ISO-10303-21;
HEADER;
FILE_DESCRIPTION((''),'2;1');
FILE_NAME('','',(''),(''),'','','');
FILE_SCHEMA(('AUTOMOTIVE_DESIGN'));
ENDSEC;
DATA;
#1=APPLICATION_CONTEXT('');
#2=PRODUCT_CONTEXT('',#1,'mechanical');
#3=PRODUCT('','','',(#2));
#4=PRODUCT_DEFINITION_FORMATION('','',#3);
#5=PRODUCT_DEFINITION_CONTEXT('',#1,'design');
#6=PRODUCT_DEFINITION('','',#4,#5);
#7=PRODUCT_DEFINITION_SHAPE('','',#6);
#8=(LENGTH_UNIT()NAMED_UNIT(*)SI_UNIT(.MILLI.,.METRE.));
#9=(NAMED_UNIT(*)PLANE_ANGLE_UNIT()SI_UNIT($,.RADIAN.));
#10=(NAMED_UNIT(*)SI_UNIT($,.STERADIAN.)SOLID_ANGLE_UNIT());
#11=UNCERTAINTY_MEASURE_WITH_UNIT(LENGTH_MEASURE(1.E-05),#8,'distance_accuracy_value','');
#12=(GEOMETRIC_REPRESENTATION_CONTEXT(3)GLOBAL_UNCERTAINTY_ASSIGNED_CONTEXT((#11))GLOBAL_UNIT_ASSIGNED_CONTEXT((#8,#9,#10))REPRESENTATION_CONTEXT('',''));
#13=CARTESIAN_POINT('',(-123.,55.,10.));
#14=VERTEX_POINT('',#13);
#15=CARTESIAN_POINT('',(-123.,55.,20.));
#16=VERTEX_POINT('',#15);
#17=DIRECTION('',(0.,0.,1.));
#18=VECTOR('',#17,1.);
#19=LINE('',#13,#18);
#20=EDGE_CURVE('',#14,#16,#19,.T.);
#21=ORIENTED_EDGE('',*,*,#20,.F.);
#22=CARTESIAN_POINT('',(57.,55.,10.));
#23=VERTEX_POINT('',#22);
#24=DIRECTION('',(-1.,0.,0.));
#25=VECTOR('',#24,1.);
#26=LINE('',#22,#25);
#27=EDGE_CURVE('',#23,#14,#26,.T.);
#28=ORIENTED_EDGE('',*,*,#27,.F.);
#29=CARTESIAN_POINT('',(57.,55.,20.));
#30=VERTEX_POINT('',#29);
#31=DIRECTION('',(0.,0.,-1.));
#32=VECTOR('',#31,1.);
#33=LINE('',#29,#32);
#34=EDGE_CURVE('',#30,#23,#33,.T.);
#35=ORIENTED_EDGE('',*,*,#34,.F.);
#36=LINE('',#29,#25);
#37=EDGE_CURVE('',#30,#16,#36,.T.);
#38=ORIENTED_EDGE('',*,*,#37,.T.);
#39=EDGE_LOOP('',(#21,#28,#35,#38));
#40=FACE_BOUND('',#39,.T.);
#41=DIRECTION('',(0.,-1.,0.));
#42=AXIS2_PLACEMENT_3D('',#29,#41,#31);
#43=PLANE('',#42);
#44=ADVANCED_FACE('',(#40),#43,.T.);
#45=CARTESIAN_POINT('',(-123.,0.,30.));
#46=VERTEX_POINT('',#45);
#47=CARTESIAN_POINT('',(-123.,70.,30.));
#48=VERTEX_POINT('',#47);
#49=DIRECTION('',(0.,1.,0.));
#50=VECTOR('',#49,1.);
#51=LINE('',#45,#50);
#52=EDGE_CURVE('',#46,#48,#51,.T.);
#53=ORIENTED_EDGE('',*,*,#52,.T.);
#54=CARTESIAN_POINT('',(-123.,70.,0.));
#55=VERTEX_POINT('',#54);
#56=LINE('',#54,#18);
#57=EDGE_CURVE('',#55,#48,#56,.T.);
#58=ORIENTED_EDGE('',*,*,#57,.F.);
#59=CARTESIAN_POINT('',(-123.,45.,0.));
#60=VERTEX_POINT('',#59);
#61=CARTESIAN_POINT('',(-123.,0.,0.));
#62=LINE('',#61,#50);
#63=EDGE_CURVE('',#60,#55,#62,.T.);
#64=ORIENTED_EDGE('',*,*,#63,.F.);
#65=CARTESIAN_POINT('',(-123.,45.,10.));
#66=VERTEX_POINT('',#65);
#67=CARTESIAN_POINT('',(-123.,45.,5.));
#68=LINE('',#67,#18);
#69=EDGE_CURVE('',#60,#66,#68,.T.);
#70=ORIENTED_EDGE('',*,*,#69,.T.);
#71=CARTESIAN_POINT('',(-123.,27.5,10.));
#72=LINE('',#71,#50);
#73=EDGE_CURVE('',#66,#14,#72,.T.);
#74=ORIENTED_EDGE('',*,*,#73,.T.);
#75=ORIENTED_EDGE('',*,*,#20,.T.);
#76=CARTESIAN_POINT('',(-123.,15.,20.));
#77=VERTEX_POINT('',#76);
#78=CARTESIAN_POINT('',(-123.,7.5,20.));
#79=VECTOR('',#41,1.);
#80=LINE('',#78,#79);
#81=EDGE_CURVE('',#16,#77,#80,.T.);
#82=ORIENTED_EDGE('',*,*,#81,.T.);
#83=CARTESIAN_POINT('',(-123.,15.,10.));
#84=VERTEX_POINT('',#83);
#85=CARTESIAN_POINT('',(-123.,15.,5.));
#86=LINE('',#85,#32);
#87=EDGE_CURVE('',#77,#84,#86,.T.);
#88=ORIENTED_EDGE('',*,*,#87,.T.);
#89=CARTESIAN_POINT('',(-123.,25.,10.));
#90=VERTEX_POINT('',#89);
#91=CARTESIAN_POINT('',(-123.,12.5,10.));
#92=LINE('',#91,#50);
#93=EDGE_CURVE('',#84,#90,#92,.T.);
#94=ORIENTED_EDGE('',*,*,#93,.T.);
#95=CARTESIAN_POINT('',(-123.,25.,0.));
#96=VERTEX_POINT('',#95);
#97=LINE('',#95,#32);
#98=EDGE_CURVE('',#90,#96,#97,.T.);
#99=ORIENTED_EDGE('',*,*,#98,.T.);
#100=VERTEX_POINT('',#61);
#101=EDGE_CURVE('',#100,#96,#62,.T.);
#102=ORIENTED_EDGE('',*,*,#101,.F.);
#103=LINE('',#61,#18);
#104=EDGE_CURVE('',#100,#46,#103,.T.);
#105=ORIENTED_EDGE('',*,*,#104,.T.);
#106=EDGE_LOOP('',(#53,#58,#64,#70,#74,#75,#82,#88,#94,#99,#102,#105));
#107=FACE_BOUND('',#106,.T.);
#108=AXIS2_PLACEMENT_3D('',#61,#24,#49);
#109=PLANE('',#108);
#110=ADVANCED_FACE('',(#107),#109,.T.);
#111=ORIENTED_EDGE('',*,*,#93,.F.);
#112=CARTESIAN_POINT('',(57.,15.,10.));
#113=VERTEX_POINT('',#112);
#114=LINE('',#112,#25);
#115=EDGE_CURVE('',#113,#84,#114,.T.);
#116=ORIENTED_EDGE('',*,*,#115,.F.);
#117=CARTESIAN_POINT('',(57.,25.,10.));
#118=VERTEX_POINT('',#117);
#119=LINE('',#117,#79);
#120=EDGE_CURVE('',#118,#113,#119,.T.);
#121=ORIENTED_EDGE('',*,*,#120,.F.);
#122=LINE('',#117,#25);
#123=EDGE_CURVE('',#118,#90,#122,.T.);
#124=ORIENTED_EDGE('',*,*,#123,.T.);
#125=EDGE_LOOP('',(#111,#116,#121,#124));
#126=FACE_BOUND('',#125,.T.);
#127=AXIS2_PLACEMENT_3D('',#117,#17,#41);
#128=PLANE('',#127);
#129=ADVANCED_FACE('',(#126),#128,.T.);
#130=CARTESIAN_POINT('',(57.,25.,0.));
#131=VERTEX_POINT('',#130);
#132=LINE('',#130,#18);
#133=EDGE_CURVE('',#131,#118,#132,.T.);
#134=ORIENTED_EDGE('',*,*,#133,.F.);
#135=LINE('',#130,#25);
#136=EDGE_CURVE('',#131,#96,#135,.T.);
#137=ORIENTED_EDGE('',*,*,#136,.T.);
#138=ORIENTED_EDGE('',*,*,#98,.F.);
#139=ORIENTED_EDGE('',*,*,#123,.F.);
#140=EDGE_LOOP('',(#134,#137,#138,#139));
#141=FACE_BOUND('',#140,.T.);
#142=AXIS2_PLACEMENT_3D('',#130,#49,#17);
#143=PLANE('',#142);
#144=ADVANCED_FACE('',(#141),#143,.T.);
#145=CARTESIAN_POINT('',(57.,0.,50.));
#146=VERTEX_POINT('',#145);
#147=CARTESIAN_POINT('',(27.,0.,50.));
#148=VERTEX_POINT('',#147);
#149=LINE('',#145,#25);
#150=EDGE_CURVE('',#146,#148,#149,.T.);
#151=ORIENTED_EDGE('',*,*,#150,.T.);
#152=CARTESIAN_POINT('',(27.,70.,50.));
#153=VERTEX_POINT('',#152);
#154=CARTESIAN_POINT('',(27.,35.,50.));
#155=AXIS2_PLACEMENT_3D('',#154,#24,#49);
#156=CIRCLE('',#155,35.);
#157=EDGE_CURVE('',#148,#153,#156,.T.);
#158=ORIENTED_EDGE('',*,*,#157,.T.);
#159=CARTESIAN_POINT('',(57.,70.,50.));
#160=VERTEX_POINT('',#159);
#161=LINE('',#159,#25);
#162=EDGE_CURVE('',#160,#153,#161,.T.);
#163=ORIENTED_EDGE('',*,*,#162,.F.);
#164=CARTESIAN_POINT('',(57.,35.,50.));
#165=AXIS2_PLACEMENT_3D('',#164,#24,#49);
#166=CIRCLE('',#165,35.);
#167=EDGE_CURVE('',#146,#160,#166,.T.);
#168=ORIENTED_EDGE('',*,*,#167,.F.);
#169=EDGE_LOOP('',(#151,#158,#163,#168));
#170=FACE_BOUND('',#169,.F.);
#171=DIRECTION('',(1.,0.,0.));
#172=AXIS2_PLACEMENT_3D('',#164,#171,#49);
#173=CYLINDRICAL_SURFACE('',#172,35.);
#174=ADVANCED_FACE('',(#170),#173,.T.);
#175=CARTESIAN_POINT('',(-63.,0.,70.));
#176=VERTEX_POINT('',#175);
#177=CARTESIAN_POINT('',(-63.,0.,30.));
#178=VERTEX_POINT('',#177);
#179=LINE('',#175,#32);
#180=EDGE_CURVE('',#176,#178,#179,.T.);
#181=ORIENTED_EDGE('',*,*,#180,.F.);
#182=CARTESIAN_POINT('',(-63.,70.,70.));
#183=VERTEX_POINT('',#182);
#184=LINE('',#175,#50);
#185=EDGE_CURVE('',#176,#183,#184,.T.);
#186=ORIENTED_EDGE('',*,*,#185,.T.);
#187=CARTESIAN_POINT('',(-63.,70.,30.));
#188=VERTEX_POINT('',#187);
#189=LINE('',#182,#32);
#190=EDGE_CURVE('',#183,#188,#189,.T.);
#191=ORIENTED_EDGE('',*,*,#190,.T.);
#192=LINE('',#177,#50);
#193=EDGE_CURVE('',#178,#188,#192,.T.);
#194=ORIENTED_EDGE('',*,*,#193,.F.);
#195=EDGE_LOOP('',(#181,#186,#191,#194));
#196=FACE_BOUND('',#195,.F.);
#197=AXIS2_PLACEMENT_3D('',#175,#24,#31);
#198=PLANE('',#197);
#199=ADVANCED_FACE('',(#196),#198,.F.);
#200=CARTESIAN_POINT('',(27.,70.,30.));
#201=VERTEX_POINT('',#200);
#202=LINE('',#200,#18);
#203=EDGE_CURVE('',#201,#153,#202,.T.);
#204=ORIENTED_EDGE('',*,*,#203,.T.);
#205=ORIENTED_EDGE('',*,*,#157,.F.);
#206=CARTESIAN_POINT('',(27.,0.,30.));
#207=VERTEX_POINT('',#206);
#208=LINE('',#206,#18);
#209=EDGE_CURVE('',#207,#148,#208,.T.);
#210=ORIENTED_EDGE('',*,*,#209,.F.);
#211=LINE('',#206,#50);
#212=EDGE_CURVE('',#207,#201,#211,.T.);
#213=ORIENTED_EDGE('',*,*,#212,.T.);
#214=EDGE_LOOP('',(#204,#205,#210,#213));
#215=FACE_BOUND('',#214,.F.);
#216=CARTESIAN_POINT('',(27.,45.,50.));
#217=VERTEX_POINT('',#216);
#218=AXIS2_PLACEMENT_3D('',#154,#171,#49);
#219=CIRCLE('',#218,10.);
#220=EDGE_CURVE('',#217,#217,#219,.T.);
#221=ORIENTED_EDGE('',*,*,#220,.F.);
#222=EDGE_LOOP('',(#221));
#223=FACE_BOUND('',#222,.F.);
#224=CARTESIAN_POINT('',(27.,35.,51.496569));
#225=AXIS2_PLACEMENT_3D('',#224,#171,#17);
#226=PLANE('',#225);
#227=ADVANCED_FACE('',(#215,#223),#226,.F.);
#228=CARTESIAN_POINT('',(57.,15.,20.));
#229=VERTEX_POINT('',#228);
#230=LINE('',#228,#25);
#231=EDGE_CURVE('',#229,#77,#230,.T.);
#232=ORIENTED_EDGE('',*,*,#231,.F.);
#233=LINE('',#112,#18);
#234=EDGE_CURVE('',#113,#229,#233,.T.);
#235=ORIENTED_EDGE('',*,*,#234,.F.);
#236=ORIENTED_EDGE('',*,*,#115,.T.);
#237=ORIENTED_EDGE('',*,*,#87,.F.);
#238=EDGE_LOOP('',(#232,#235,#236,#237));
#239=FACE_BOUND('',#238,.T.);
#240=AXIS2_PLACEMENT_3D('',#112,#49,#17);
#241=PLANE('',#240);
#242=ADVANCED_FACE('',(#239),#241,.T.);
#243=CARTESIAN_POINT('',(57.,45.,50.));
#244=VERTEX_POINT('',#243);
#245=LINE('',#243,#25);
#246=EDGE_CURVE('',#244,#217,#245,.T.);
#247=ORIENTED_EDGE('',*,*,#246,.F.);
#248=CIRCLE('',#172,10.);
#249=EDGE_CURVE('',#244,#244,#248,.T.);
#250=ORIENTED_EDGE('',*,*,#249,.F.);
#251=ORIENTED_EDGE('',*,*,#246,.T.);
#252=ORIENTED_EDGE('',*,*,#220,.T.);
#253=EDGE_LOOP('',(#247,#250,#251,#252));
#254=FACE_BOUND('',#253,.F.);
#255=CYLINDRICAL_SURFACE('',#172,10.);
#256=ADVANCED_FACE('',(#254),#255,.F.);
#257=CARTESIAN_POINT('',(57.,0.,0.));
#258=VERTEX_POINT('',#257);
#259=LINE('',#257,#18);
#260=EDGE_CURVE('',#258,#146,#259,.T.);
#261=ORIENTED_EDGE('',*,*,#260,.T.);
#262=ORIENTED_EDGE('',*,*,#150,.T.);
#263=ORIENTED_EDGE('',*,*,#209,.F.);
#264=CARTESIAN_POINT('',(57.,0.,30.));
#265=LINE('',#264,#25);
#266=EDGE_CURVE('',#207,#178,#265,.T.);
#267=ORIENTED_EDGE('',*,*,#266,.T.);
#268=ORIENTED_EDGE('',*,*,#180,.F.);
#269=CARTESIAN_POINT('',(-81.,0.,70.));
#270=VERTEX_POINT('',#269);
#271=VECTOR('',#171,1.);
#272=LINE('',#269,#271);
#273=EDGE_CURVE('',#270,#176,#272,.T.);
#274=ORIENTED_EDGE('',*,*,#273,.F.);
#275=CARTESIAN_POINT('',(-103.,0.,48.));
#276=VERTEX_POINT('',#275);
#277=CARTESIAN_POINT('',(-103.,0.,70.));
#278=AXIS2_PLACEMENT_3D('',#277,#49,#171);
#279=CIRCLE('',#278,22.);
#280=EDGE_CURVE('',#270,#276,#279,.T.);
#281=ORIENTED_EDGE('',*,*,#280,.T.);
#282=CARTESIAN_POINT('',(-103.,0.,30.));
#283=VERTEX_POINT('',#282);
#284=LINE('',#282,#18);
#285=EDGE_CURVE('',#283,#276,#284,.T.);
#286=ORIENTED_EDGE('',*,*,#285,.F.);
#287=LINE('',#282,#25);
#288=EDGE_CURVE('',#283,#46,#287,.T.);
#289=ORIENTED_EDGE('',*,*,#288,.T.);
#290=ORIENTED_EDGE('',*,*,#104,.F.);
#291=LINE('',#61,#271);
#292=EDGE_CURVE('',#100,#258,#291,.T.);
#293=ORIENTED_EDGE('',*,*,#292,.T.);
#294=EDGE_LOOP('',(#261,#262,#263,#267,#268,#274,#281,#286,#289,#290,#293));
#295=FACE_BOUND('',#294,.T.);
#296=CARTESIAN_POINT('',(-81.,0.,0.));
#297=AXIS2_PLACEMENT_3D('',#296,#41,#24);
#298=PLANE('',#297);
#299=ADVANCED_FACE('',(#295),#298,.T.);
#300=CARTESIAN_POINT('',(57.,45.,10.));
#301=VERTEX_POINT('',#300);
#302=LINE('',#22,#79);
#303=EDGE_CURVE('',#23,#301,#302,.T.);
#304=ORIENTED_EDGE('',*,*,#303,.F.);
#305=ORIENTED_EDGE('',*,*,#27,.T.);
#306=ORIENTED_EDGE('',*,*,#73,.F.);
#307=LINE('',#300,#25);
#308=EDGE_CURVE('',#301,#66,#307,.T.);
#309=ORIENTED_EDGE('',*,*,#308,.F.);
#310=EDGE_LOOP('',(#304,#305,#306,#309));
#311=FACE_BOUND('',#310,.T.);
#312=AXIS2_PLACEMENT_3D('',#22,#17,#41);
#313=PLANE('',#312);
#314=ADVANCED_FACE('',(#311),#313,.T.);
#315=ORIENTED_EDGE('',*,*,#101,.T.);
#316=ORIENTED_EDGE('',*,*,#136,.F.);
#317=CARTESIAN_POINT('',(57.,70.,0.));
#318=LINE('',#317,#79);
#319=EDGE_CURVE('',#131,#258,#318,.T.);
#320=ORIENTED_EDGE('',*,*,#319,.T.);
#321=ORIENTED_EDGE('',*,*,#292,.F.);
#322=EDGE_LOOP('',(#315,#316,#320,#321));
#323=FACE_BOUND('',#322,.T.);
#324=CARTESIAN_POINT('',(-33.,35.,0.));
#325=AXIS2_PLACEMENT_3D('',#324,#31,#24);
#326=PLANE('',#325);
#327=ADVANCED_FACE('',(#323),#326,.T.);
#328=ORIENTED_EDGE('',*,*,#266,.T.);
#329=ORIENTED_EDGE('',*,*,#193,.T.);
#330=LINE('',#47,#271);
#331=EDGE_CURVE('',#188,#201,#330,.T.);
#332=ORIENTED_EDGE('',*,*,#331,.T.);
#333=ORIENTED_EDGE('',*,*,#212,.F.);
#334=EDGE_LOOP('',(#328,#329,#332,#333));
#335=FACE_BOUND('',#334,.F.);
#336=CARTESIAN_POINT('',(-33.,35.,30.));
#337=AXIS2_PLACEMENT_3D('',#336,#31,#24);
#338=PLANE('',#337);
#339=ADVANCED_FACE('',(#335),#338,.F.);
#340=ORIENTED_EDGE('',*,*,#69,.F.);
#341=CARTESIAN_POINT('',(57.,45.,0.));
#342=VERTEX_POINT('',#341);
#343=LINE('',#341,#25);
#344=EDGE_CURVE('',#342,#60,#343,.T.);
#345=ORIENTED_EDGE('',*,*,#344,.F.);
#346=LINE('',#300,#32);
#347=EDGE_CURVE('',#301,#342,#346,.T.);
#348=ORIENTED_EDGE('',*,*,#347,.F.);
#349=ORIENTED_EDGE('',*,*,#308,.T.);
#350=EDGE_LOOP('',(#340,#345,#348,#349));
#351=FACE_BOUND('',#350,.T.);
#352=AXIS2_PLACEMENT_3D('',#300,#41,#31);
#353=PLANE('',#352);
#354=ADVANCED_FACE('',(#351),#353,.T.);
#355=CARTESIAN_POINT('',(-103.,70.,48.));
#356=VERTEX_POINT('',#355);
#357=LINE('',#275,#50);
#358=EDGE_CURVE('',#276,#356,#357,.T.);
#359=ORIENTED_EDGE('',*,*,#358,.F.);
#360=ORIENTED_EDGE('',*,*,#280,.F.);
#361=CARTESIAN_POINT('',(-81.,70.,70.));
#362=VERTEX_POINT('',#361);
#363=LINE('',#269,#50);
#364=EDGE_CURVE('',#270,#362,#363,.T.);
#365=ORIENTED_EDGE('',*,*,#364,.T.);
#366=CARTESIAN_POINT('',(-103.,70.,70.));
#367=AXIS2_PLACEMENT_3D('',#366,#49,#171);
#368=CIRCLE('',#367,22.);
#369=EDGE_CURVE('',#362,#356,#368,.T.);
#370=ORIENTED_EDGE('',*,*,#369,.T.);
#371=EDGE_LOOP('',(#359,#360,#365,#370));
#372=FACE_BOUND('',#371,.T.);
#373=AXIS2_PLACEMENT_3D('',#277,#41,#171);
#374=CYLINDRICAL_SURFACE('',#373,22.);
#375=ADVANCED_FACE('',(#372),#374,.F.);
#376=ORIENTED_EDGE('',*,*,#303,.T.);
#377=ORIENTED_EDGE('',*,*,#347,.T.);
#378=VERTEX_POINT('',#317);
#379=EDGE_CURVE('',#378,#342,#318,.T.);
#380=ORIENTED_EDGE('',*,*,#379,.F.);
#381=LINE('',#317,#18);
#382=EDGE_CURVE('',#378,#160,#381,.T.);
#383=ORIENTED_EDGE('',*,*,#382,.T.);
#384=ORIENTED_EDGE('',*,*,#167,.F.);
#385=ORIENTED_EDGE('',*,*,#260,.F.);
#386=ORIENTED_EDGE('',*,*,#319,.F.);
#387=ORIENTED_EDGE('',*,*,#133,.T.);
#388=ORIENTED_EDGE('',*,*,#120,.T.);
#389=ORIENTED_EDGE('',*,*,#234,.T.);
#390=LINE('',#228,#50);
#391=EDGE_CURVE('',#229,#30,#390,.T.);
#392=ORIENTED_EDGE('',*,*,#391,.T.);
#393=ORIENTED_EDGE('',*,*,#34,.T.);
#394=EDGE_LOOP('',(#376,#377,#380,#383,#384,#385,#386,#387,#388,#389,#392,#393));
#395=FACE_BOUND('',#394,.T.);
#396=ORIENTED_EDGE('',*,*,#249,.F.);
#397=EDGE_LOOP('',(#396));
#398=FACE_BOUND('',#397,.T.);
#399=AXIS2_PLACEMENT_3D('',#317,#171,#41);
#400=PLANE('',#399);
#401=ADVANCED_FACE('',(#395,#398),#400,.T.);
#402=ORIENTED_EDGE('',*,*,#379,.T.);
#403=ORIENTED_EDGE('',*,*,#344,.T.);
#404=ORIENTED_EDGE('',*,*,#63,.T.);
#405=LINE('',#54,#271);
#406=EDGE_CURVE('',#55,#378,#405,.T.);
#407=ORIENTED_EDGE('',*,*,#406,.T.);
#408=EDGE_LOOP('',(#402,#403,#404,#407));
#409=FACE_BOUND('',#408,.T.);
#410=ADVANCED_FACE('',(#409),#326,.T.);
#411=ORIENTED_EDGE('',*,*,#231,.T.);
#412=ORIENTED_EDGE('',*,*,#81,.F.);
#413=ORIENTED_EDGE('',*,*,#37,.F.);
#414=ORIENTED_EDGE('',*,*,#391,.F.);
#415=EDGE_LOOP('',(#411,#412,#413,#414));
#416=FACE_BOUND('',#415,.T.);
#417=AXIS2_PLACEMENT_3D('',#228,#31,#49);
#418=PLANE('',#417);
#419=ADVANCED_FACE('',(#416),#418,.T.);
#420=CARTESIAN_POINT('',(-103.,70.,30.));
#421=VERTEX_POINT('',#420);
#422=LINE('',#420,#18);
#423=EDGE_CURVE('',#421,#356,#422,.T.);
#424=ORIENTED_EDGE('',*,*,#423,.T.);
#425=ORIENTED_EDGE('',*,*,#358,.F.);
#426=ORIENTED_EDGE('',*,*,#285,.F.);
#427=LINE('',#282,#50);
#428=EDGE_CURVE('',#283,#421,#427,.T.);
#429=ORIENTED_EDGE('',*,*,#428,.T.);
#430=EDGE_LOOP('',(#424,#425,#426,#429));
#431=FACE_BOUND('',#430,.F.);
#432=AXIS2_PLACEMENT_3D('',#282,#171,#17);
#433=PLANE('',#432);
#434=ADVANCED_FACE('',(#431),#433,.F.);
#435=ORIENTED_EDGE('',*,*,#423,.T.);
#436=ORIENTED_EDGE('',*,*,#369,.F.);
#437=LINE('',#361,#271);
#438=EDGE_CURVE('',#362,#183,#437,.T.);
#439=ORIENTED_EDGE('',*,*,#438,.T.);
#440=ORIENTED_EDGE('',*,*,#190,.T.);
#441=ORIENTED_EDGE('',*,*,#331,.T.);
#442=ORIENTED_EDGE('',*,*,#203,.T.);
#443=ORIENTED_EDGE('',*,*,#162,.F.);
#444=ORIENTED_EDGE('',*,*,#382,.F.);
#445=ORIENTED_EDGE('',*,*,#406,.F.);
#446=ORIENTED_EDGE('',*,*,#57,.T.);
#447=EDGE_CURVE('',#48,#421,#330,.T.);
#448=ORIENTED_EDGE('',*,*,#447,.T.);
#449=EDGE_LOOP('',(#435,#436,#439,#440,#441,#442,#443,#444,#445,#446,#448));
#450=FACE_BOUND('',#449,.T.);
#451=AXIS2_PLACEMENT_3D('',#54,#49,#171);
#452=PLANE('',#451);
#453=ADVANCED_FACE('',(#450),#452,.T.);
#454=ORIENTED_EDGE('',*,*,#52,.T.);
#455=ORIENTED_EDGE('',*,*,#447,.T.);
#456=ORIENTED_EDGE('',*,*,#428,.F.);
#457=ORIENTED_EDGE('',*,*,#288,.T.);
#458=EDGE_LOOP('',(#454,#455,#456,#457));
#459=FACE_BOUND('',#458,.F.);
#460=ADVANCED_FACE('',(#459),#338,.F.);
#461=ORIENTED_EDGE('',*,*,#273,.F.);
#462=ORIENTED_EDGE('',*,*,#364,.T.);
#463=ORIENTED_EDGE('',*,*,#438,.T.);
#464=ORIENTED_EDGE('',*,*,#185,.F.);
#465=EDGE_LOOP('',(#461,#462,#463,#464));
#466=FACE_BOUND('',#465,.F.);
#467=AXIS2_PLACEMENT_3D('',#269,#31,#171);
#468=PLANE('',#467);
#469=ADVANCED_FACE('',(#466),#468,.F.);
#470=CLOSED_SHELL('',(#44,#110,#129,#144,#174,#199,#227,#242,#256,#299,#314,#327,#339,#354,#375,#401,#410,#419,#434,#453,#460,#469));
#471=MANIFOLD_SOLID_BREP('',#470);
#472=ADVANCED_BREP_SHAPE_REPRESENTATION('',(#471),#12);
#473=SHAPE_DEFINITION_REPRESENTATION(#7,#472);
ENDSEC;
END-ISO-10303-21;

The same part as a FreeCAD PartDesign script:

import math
import FreeCAD as App
import Part
import Sketcher

V = App.Vector
Q = App.Units.Quantity


def add_polygon(sketch, points):
    """Adds a closed chain of lines whose ends are joined by coincident constraints."""
    first, n = sketch.GeometryCount, len(points)
    for a, b in zip(points, points[1:] + points[:1]):
        sketch.addGeometry(Part.LineSegment(App.Vector(*a, 0), App.Vector(*b, 0)), False)
    for i in range(n):
        sketch.addConstraint(Sketcher.Constraint("Coincident", first + i, 2, first + (i + 1) % n, 1))

doc = App.newDocument("Part")
body = doc.addObject("PartDesign::Body", "Body")

sketch1 = body.newObject("Sketcher::SketchObject", "Sketch")
sketch1.AttachmentSupport = (doc.getObject("XY_Plane"), [""])
sketch1.MapMode = "FlatFace"
add_polygon(sketch1, [(-123, 0), (57, 0), (57, 70), (-123, 70)])
sketch1.addConstraint([
    Sketcher.Constraint("Horizontal", 0),
    Sketcher.Constraint("Vertical", 1),
    Sketcher.Constraint("Horizontal", 2),
    Sketcher.Constraint("Vertical", 3),
    Sketcher.Constraint("PointOnObject", 0, 2, -1),
    Sketcher.Constraint("DistanceX", 0, 1, 0, 2, Q("180 mm")),
    Sketcher.Constraint("DistanceY", 1, 1, 1, 2, Q("70 mm")),
    Sketcher.Constraint("DistanceX", -1, 1, 0, 2, Q("57 mm")),
])
pad1 = body.newObject("PartDesign::Pad", "Pad")
pad1.Profile = sketch1
pad1.Length = 30

sketch2 = body.newObject("Sketcher::SketchObject", "Sketch001")
sketch2.AttachmentSupport = (doc.getObject("XZ_Plane"), [""])
sketch2.MapMode = "FlatFace"
sketch2.addGeometry([
    Part.LineSegment(V(-63, 70, 0), V(-81, 70, 0)),
    Part.ArcOfCircle(Part.Circle(V(-103, 70, 0), V(0, 0, 1), 22), math.radians(-90), math.radians(0)),
    Part.LineSegment(V(-103, 48, 0), V(-103, 30, 0)),
    Part.LineSegment(V(-103, 30, 0), V(-63, 30, 0)),
    Part.LineSegment(V(-63, 30, 0), V(-63, 70, 0)),
], False)
sketch2.addConstraint([
    Sketcher.Constraint("Coincident", 0, 2, 1, 2),
    Sketcher.Constraint("Coincident", 1, 1, 2, 1),
    Sketcher.Constraint("Coincident", 2, 2, 3, 1),
    Sketcher.Constraint("Coincident", 3, 2, 4, 1),
    Sketcher.Constraint("Coincident", 4, 2, 0, 1),
    Sketcher.Constraint("Horizontal", 0),
    Sketcher.Constraint("Vertical", 2),
    Sketcher.Constraint("Horizontal", 3),
    Sketcher.Constraint("Vertical", 4),
    Sketcher.Constraint("Horizontal", 1, 3, 0, 2),
    Sketcher.Constraint("Equal", 0, 2),
    Sketcher.Constraint("Equal", 3, 4),
    Sketcher.Constraint("Radius", 1, Q("22 mm")),
    Sketcher.Constraint("DistanceX", 0, 2, 0, 1, Q("18 mm")),
    Sketcher.Constraint("DistanceX", 1, 3, -1, 1, Q("103 mm")),
    Sketcher.Constraint("DistanceY", -1, 1, 1, 3, Q("70 mm")),
])
pad2 = body.newObject("PartDesign::Pad", "Pad001")
pad2.Profile = sketch2
pad2.Length = 70
pad2.Reversed = True

sketch3 = body.newObject("Sketcher::SketchObject", "Sketch002")
sketch3.AttachmentSupport = (doc.getObject("YZ_Plane"), [""])
sketch3.MapMode = "FlatFace"
sketch3.AttachmentOffset = App.Placement(V(0, 0, 57), App.Rotation())
sketch3.addGeometry([
    Part.LineSegment(V(0, 30, 0), V(70, 30, 0)),
    Part.LineSegment(V(70, 30, 0), V(70, 50, 0)),
    Part.ArcOfCircle(Part.Circle(V(35, 50, 0), V(0, 0, 1), 35), math.radians(0), math.radians(180)),
    Part.LineSegment(V(0, 50, 0), V(0, 30, 0)),
    Part.Circle(V(35, 50, 0), V(0, 0, 1), 10),
], False)
sketch3.addConstraint([
    Sketcher.Constraint("Coincident", 0, 2, 1, 1),
    Sketcher.Constraint("Tangent", 1, 2, 2, 1),
    Sketcher.Constraint("Tangent", 2, 2, 3, 1),
    Sketcher.Constraint("Coincident", 3, 2, 0, 1),
    Sketcher.Constraint("Horizontal", 0),
    Sketcher.Constraint("Vertical", 1),
    Sketcher.Constraint("Vertical", 3),
    Sketcher.Constraint("Coincident", 4, 3, 2, 3),
    Sketcher.Constraint("PointOnObject", 2, 2, -2),
    Sketcher.Constraint("Diameter", 4, Q("20 mm")),
    Sketcher.Constraint("Radius", 2, Q("35 mm")),
    Sketcher.Constraint("DistanceY", 1, 1, 1, 2, Q("20 mm")),
    Sketcher.Constraint("DistanceY", -1, 1, 2, 3, Q("50 mm")),
])
pad3 = body.newObject("PartDesign::Pad", "Pad002")
pad3.Profile = sketch3
pad3.Length = 30
pad3.Reversed = True

sketch4 = body.newObject("Sketcher::SketchObject", "Sketch003")
sketch4.AttachmentSupport = (doc.getObject("YZ_Plane"), [""])
sketch4.MapMode = "FlatFace"
sketch4.AttachmentOffset = App.Placement(V(0, 0, 57), App.Rotation())
add_polygon(sketch4, [(55, 20), (15, 20), (15, 10), (25, 10), (25, 0), (45, 0), (45, 10), (55, 10)])
sketch4.addConstraint([
    Sketcher.Constraint("Horizontal", 0),
    Sketcher.Constraint("Vertical", 1),
    Sketcher.Constraint("Horizontal", 2),
    Sketcher.Constraint("Vertical", 3),
    Sketcher.Constraint("Horizontal", 4),
    Sketcher.Constraint("Vertical", 5),
    Sketcher.Constraint("Horizontal", 6),
    Sketcher.Constraint("Vertical", 7),
    Sketcher.Constraint("PointOnObject", 3, 2, -1),
    Sketcher.Constraint("Horizontal", 2, 2, 5, 2),
    Sketcher.Constraint("Equal", 2, 6),
    Sketcher.Constraint("Equal", 6, 1),
    Sketcher.Constraint("Equal", 1, 3),
    Sketcher.Constraint("DistanceX", 0, 2, 0, 1, Q("40 mm")),
    Sketcher.Constraint("DistanceX", 2, 1, 2, 2, Q("10 mm")),
    Sketcher.Constraint("DistanceX", -1, 1, 0, 2, Q("15 mm")),
])
pocket1 = body.newObject("PartDesign::Pocket", "Pocket")
pocket1.Profile = sketch4
pocket1.Length = 187.8697

doc.recompute()
